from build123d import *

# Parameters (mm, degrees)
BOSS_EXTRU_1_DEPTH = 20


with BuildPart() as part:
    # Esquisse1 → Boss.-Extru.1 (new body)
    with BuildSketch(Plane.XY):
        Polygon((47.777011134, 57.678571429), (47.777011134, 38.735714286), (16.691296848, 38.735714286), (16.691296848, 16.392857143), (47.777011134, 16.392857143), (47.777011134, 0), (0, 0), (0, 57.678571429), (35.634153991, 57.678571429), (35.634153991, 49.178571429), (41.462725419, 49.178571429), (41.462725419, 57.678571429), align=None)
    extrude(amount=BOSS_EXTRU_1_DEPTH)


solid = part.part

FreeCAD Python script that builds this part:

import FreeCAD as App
import Part
import Sketcher


def add_polygon(sketch, points):
    """Adds a closed chain of lines whose ends are joined by coincident constraints."""
    first, n = sketch.GeometryCount, len(points)
    for a, b in zip(points, points[1:] + points[:1]):
        sketch.addGeometry(Part.LineSegment(App.Vector(*a, 0), App.Vector(*b, 0)), False)
    for i in range(n):
        sketch.addConstraint(Sketcher.Constraint("Coincident", first + i, 2, first + (i + 1) % n, 1))

doc = App.newDocument("Part")
body = doc.addObject("PartDesign::Body", "Body")

# Sketch on XY plane
sketch1 = body.newObject("Sketcher::SketchObject", "Sketch")
sketch1.AttachmentSupport = (doc.getObject("XY_Plane"), [""])
sketch1.MapMode = "FlatFace"
add_polygon(sketch1, [(47.777011, 38.735714), (47.777011, 57.678571), (41.462725, 57.678571), (41.462725, 49.178571), (35.634154, 49.178571), (35.634154, 57.678571), (0, 57.678571), (0, 0), (47.777011, 0), (47.777011, 16.392857), (16.691297, 16.392857), (16.691297, 38.735714)])  # lines 0-11
sketch1.addConstraint([
    Sketcher.Constraint("Vertical", 0),
    Sketcher.Constraint("Horizontal", 1),
    Sketcher.Constraint("Vertical", 2),
    Sketcher.Constraint("Horizontal", 3),
    Sketcher.Constraint("Vertical", 4),
    Sketcher.Constraint("Horizontal", 5),
    Sketcher.Constraint("Vertical", 6),
    Sketcher.Constraint("Horizontal", 7),
    Sketcher.Constraint("Vertical", 8),
    Sketcher.Constraint("Horizontal", 9),
    Sketcher.Constraint("Vertical", 10),
    Sketcher.Constraint("Horizontal", 11),
    Sketcher.Constraint("Coincident", 6, 2, -1, 1),
    Sketcher.Constraint("Horizontal", 1, 2, 4, 2),
    Sketcher.Constraint("Vertical", 0, 2, 7, 2),
    Sketcher.Constraint("DistanceY", 2, 2, 2, 1, 8.5),
    Sketcher.Constraint("DistanceX", 3, 2, 3, 1, 5.828571),
    Sketcher.Constraint("DistanceX", 7, 1, 7, 2, 47.777011),
    Sketcher.Constraint("DistanceY", 6, 2, 6, 1, 57.678571),
    Sketcher.Constraint("DistanceX", 1, 2, 1, 1, 6.314286),
    Sketcher.Constraint("DistanceX", 9, 2, 9, 1, 31.085714),
    Sketcher.Constraint("DistanceY", 0, 1, 0, 2, 18.942857),
    Sketcher.Constraint("DistanceY", 8, 1, 8, 2, 16.392857),
])
pad1 = body.newObject("PartDesign::Pad", "Pad")
pad1.Profile = sketch1
pad1.Length = 20

doc.recompute()
